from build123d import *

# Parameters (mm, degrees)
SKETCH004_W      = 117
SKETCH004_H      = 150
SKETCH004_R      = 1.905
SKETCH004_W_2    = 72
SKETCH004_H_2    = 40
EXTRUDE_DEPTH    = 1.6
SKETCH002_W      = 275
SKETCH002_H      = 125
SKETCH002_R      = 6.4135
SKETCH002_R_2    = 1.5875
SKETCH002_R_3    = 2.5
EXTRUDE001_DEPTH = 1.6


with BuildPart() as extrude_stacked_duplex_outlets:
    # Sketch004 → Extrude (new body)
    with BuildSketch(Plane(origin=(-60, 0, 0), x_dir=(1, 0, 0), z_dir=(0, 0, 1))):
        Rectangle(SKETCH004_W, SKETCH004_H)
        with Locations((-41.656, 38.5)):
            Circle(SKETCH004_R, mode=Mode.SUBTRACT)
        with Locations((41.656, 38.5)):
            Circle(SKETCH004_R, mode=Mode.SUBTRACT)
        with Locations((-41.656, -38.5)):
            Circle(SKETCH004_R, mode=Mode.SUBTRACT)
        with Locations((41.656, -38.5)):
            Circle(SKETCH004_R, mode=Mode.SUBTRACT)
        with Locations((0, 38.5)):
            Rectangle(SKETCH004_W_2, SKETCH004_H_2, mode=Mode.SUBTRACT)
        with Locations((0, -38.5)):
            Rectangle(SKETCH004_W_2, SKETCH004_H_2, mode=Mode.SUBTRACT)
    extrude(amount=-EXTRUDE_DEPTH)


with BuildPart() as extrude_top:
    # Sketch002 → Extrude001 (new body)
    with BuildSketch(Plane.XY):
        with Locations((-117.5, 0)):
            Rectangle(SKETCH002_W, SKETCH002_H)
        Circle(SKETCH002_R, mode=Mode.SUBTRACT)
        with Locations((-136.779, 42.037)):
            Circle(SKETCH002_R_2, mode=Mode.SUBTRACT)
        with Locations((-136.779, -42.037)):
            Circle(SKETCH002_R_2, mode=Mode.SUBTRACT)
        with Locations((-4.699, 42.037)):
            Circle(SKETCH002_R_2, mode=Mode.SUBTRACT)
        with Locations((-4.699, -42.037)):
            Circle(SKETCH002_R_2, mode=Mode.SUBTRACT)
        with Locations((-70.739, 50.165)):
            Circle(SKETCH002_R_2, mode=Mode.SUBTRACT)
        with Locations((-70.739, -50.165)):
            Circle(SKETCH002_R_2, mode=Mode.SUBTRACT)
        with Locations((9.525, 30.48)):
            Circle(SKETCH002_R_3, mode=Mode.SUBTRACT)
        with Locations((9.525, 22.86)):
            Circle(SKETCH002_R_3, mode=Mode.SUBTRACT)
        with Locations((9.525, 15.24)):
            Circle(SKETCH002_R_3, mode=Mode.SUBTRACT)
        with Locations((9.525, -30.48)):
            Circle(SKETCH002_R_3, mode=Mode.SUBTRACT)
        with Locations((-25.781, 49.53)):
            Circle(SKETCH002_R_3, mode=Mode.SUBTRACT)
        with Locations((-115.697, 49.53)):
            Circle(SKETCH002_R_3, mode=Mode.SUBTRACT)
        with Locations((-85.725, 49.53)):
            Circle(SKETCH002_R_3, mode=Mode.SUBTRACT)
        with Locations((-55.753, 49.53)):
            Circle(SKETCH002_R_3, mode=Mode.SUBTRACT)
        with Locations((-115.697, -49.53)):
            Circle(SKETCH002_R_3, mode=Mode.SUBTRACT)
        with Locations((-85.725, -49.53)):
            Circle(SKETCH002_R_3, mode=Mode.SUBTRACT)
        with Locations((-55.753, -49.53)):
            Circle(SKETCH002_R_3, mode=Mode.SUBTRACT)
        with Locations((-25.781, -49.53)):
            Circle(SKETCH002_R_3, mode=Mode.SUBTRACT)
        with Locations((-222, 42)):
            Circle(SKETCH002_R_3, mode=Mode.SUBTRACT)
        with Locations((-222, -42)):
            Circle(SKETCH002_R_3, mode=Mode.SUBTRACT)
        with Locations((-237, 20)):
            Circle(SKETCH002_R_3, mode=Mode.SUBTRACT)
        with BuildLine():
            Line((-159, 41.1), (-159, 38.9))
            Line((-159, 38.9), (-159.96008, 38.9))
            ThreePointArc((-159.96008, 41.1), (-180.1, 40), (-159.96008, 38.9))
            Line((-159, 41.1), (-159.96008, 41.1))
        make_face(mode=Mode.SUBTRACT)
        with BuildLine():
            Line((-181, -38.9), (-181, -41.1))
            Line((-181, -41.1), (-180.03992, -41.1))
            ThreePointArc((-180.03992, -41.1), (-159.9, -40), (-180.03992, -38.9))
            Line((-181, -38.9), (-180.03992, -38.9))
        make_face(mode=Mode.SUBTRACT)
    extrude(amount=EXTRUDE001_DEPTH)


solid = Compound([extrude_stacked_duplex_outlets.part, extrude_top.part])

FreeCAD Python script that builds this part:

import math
import FreeCAD as App
import Part
import Sketcher

V = App.Vector
Q = App.Units.Quantity


def add_polygon(sketch, points):
    """Adds a closed chain of lines whose ends are joined by coincident constraints."""
    first, n = sketch.GeometryCount, len(points)
    for a, b in zip(points, points[1:] + points[:1]):
        sketch.addGeometry(Part.LineSegment(App.Vector(*a, 0), App.Vector(*b, 0)), False)
    for i in range(n):
        sketch.addConstraint(Sketcher.Constraint("Coincident", first + i, 2, first + (i + 1) % n, 1))

doc = App.newDocument("Part")
body = doc.addObject("PartDesign::Body", "Body")

# Sketch on XY plane
sketch1 = body.newObject("Sketcher::SketchObject", "Sketch")
sketch1.AttachmentSupport = (doc.getObject("XY_Plane"), [""])
sketch1.MapMode = "FlatFace"
add_polygon(sketch1, [(-118.5, 75), (-118.5, -75), (-1.5, -75), (-1.5, 75)])  # lines 0-3
sketch1.addGeometry(Part.Circle(V(-101.656, -38.5, 0), V(0, 0, 1), 1.905), False)  # 4
add_polygon(sketch1, [(-24, -58.5), (-96, -58.5), (-96, -18.5), (-24, -18.5)])  # lines 5-8
sketch1.addGeometry(Part.Circle(V(-18.344, -38.5, 0), V(0, 0, 1), 1.905), False)  # 9
sketch1.addGeometry(Part.Circle(V(-101.656, 38.5, 0), V(0, 0, 1), 1.905), False)  # 10
add_polygon(sketch1, [(-24, 18.5), (-96, 18.5), (-96, 58.5), (-24, 58.5)])  # lines 11-14
sketch1.addGeometry(Part.Circle(V(-18.344, 38.5, 0), V(0, 0, 1), 1.905), False)  # 15
sketch1.addConstraint([
    Sketcher.Constraint("Vertical", 0),
    Sketcher.Constraint("Horizontal", 1),
    Sketcher.Constraint("Vertical", 2),
    Sketcher.Constraint("Horizontal", 3),
    Sketcher.Constraint("Horizontal", 5),
    Sketcher.Constraint("Vertical", 6),
    Sketcher.Constraint("Horizontal", 7),
    Sketcher.Constraint("Vertical", 8),
    Sketcher.Constraint("Horizontal", 11),
    Sketcher.Constraint("Vertical", 12),
    Sketcher.Constraint("Horizontal", 13),
    Sketcher.Constraint("Vertical", 14),
    Sketcher.Constraint("Equal", 4, 9),
    Sketcher.Constraint("Equal", 9, 10),
    Sketcher.Constraint("Equal", 10, 15),
    Sketcher.Constraint("Symmetric", 4, 3, 10, 3, -1),
    Sketcher.Constraint("Symmetric", 9, 3, 15, 3, -1),
    Sketcher.Constraint("Symmetric", 6, 2, 11, 2, -1),
    Sketcher.Constraint("Symmetric", 8, 2, 13, 2, -1),
    Sketcher.Constraint("Horizontal", 4, 3, 9, 3),
    Sketcher.Constraint("Diameter", 4, Q("3.81 mm")),
    Sketcher.Constraint("DistanceX", 1, 1, 1, 2, Q("117 mm")),
    Sketcher.Constraint("DistanceX", 5, 2, 5, 1, Q("72 mm")),
    Sketcher.Constraint("DistanceY", 0, 2, 0, 1, Q("150 mm")),
    Sketcher.Constraint("DistanceY", 6, 1, 6, 2, Q("40 mm")),
    Sketcher.Constraint("DistanceY", 0, 2, -1, 1, Q("75 mm")),
    Sketcher.Constraint("DistanceX", 5, 2, -1, 1, Q("96 mm")),
    Sketcher.Constraint("DistanceY", 4, 3, 10, 3, Q("77 mm")),
    Sketcher.Constraint("DistanceY", 5, 2, 4, 3, Q("20 mm")),
    Sketcher.Constraint("DistanceX", 0, 2, -1, 1, Q("118.5 mm")),
    Sketcher.Constraint("DistanceX", 4, 3, -1, 1, Q("101.656 mm")),
    Sketcher.Constraint("DistanceX", 9, 3, -1, 1, Q("18.344 mm")),
])
pad1 = body.newObject("PartDesign::Pad", "Pad")
pad1.Profile = sketch1
pad1.Length = 1.6
pad1.Reversed = True
body2 = doc.addObject("PartDesign::Body", "Body001")

# Sketch on XY plane
sketch2 = body2.newObject("Sketcher::SketchObject", "Sketch001")
sketch2.AttachmentSupport = (doc.getObject("XY_Plane001"), [""])
sketch2.MapMode = "FlatFace"
add_polygon(sketch2, [(-255, 62.5), (-255, -62.5), (20, -62.5), (20, 62.5)])  # lines 0-3
sketch2.addGeometry(Part.Circle(V(-222, -42, 0), V(0, 0, 1), 2.5), False)  # 4
sketch2.addGeometry(Part.LineSegment(V(-181, -41.1, 0), V(-181, -38.9, 0)), False)  # 5
sketch2.addGeometry(Part.LineSegment(V(-181, -38.9, 0), V(-180.03992, -38.9, 0)), False)  # 6
sketch2.addGeometry(Part.ArcOfCircle(Part.Circle(V(-170, -40, 0), V(0, 0, 1), 10.1), math.radians(-173.747463), math.radians(173.747463)), False)  # 7
sketch2.addGeometry(Part.LineSegment(V(-180.03992, -41.1, 0), V(-181, -41.1, 0)), False)  # 8
sketch2.addGeometry(Part.Circle(V(-115.697, -49.53, 0), V(0, 0, 1), 2.5), False)  # 9
sketch2.addGeometry(Part.Circle(V(-136.779, -42.037, 0), V(0, 0, 1), 1.5875), False)  # 10
sketch2.addGeometry(Part.Circle(V(-85.725, -49.53, 0), V(0, 0, 1), 2.5), False)  # 11
sketch2.addGeometry(Part.Circle(V(-70.739, -50.165, 0), V(0, 0, 1), 1.5875), False)  # 12
sketch2.addGeometry(Part.Circle(V(-55.753, -49.53, 0), V(0, 0, 1), 2.5), False)  # 13
sketch2.addGeometry(Part.Circle(V(-25.781, -49.53, 0), V(0, 0, 1), 2.5), False)  # 14
sketch2.addGeometry(Part.Circle(V(-4.699, -42.037, 0), V(0, 0, 1), 1.5875), False)  # 15
sketch2.addGeometry(Part.Circle(V(9.525, -30.48, 0), V(0, 0, 1), 2.5), False)  # 16
sketch2.addGeometry(Part.Circle(V(-237, 20, 0), V(0, 0, 1), 2.5), False)  # 17
sketch2.addGeometry(Part.Circle(V(-222, 42, 0), V(0, 0, 1), 2.5), False)  # 18
sketch2.addGeometry(Part.LineSegment(V(-159.96008, 41.1, 0), V(-159, 41.1, 0)), False)  # 19
sketch2.addGeometry(Part.LineSegment(V(-159, 41.1, 0), V(-159, 38.9, 0)), False)  # 20
sketch2.addGeometry(Part.LineSegment(V(-159, 38.9, 0), V(-159.96008, 38.9, 0)), False)  # 21
sketch2.addGeometry(Part.ArcOfCircle(Part.Circle(V(-170, 40, 0), V(0, 0, 1), 10.1), math.radians(6.252537), math.radians(353.747463)), False)  # 22
sketch2.addGeometry(Part.Circle(V(-136.779, 42.037, 0), V(0, 0, 1), 1.5875), False)  # 23
sketch2.addGeometry(Part.Circle(V(-115.697, 49.53, 0), V(0, 0, 1), 2.5), False)  # 24
sketch2.addGeometry(Part.Circle(V(0, 0, 0), V(0, 0, 1), 6.4135), False)  # 25
sketch2.addGeometry(Part.Circle(V(9.525, 15.24, 0), V(0, 0, 1), 2.5), False)  # 26
sketch2.addGeometry(Part.Circle(V(9.525, 22.86, 0), V(0, 0, 1), 2.5), False)  # 27
sketch2.addGeometry(Part.Circle(V(-85.725, 49.53, 0), V(0, 0, 1), 2.5), False)  # 28
sketch2.addGeometry(Part.Circle(V(-70.739, 50.165, 0), V(0, 0, 1), 1.5875), False)  # 29
sketch2.addGeometry(Part.Circle(V(-55.753, 49.53, 0), V(0, 0, 1), 2.5), False)  # 30
sketch2.addGeometry(Part.Circle(V(9.525, 30.48, 0), V(0, 0, 1), 2.5), False)  # 31
sketch2.addGeometry(Part.Circle(V(-25.781, 49.53, 0), V(0, 0, 1), 2.5), False)  # 32
sketch2.addGeometry(Part.Circle(V(-4.699, 42.037, 0), V(0, 0, 1), 1.5875), False)  # 33
sketch2.addConstraint([
    Sketcher.Constraint("Coincident", 5, 2, 6, 1),
    Sketcher.Constraint("Coincident", 6, 2, 7, 2),
    Sketcher.Constraint("Coincident", 7, 1, 8, 1),
    Sketcher.Constraint("Coincident", 8, 2, 5, 1),
    Sketcher.Constraint("Coincident", 19, 2, 20, 1),
    Sketcher.Constraint("Coincident", 20, 2, 21, 1),
    Sketcher.Constraint("Coincident", 21, 2, 22, 2),
    Sketcher.Constraint("Coincident", 22, 1, 19, 1),
    Sketcher.Constraint("Vertical", 0),
    Sketcher.Constraint("Horizontal", 1),
    Sketcher.Constraint("Vertical", 2),
    Sketcher.Constraint("Horizontal", 3),
    Sketcher.Constraint("Vertical", 5),
    Sketcher.Constraint("Horizontal", 6),
    Sketcher.Constraint("Horizontal", 8),
    Sketcher.Constraint("Horizontal", 19),
    Sketcher.Constraint("Vertical", 20),
    Sketcher.Constraint("Horizontal", 21),
    Sketcher.Constraint("Coincident", 25, 3, -1, 1),
    Sketcher.Constraint("Equal", 4, 9),
    Sketcher.Constraint("Equal", 9, 11),
    Sketcher.Constraint("Equal", 10, 12),
    Sketcher.Constraint("Equal", 11, 13),
    Sketcher.Constraint("Equal", 13, 14),
    Sketcher.Constraint("Equal", 12, 15),
    Sketcher.Constraint("Equal", 14, 16),
    Sketcher.Constraint("Equal", 16, 17),
    Sketcher.Constraint("Equal", 17, 18),
    Sketcher.Constraint("Equal", 7, 22),
    Sketcher.Constraint("Equal", 15, 23),
    Sketcher.Constraint("Equal", 18, 24),
    Sketcher.Constraint("Equal", 24, 26),
    Sketcher.Constraint("Equal", 26, 27),
    Sketcher.Constraint("Equal", 27, 28),
    Sketcher.Constraint("Equal", 23, 29),
    Sketcher.Constraint("Equal", 28, 30),
    Sketcher.Constraint("Equal", 30, 31),
    Sketcher.Constraint("Equal", 31, 32),
    Sketcher.Constraint("Equal", 29, 33),
    Sketcher.Constraint("Symmetric", 4, 3, 18, 3, -1),
    Sketcher.Constraint("Symmetric", 7, 3, 22, 3, -1),
    Sketcher.Constraint("Symmetric", 10, 3, 23, 3, -1),
    Sketcher.Constraint("Symmetric", 9, 3, 24, 3, -1),
    Sketcher.Constraint("Symmetric", 11, 3, 28, 3, -1),
    Sketcher.Constraint("Symmetric", 12, 3, 29, 3, -1),
    Sketcher.Constraint("Symmetric", 13, 3, 30, 3, -1),
    Sketcher.Constraint("Symmetric", 16, 3, 31, 3, -1),
    Sketcher.Constraint("Symmetric", 14, 3, 32, 3, -1),
    Sketcher.Constraint("Symmetric", 15, 3, 33, 3, -1),
    Sketcher.Constraint("Horizontal", 9, 3, 11, 3),
    Sketcher.Constraint("Horizontal", 11, 3, 13, 3),
    Sketcher.Constraint("Horizontal", 13, 3, 14, 3),
    Sketcher.Constraint("Horizontal", 10, 3, 15, 3),
    Sketcher.Constraint("Vertical", 16, 3, 26, 3),
    Sketcher.Constraint("Vertical", 26, 3, 27, 3),
    Sketcher.Constraint("Vertical", 6, 2, 7, 1),
    Sketcher.Constraint("Vertical", 21, 2, 22, 1),
    Sketcher.Constraint("Equal", 8, 19),
    Sketcher.Constraint("Equal", 5, 20),
    Sketcher.Constraint("Diameter", 4, Q("5 mm")),
    Sketcher.Constraint("Radius", 7, Q("10.1 mm")),
    Sketcher.Constraint("DistanceX", 1, 1, 1, 2, Q("275 mm")),
    Sketcher.Constraint("DistanceY", 0, 2, 0, 1, Q("125 mm")),
    Sketcher.Constraint("Diameter", 10, Q("3.175 mm")),
    Sketcher.Constraint("Diameter", 25, Q("12.827 mm")),
    Sketcher.Constraint("DistanceY", 5, 1, 5, 2, Q("2.2 mm")),
    Sketcher.Constraint("DistanceX", 4, 3, -1, 1, Q("222 mm")),
    Sketcher.Constraint("DistanceY", 4, 3, -1, 1, Q("42 mm")),
    Sketcher.Constraint("DistanceX", 7, 3, -1, 1, Q("170 mm")),
    Sketcher.Constraint("DistanceY", 7, 3, -1, 1, Q("40 mm")),
    Sketcher.Constraint("DistanceX", 17, 3, -1, 1, Q("237 mm")),
    Sketcher.Constraint("DistanceY", -1, 1, 17, 3, Q("20 mm")),
    Sketcher.Constraint("DistanceX", 0, 2, -1, 1, Q("255 mm")),
    Sketcher.Constraint("DistanceX", 5, 2, -1, 1, Q("181 mm")),
    Sketcher.Constraint("DistanceY", 0, 2, -1, 1, Q("62.5 mm")),
    Sketcher.Constraint("DistanceY", 9, 3, -1, 1, Q("49.53 mm")),
    Sketcher.Constraint("DistanceY", 16, 3, -1, 1, Q("30.48 mm")),
    Sketcher.Constraint("DistanceY", -1, 1, 26, 3, Q("15.24 mm")),
    Sketcher.Constraint("DistanceY", -1, 1, 27, 3, Q("22.86 mm")),
    Sketcher.Constraint("DistanceX", 10, 3, 12, 3, Q("66.04 mm")),
    Sketcher.Constraint("DistanceX", 12, 3, 15, 3, Q("66.04 mm")),
    Sketcher.Constraint("DistanceX", 11, 3, 16, 3, Q("95.25 mm")),
    Sketcher.Constraint("DistanceX", 9, 3, -1, 1, Q("115.697 mm")),
    Sketcher.Constraint("DistanceX", 10, 3, -1, 1, Q("136.779 mm")),
    Sketcher.Constraint("DistanceY", 10, 3, -1, 1, Q("42.037 mm")),
    Sketcher.Constraint("DistanceX", 11, 3, -1, 1, Q("85.725 mm")),
    Sketcher.Constraint("DistanceY", 12, 3, -1, 1, Q("50.165 mm")),
    Sketcher.Constraint("DistanceX", 13, 3, -1, 1, Q("55.753 mm")),
    Sketcher.Constraint("DistanceX", 14, 3, -1, 1, Q("25.781 mm")),
])
pad2 = body2.newObject("PartDesign::Pad", "Pad001")
pad2.Profile = sketch2
pad2.Length = 1.6

doc.recompute()
